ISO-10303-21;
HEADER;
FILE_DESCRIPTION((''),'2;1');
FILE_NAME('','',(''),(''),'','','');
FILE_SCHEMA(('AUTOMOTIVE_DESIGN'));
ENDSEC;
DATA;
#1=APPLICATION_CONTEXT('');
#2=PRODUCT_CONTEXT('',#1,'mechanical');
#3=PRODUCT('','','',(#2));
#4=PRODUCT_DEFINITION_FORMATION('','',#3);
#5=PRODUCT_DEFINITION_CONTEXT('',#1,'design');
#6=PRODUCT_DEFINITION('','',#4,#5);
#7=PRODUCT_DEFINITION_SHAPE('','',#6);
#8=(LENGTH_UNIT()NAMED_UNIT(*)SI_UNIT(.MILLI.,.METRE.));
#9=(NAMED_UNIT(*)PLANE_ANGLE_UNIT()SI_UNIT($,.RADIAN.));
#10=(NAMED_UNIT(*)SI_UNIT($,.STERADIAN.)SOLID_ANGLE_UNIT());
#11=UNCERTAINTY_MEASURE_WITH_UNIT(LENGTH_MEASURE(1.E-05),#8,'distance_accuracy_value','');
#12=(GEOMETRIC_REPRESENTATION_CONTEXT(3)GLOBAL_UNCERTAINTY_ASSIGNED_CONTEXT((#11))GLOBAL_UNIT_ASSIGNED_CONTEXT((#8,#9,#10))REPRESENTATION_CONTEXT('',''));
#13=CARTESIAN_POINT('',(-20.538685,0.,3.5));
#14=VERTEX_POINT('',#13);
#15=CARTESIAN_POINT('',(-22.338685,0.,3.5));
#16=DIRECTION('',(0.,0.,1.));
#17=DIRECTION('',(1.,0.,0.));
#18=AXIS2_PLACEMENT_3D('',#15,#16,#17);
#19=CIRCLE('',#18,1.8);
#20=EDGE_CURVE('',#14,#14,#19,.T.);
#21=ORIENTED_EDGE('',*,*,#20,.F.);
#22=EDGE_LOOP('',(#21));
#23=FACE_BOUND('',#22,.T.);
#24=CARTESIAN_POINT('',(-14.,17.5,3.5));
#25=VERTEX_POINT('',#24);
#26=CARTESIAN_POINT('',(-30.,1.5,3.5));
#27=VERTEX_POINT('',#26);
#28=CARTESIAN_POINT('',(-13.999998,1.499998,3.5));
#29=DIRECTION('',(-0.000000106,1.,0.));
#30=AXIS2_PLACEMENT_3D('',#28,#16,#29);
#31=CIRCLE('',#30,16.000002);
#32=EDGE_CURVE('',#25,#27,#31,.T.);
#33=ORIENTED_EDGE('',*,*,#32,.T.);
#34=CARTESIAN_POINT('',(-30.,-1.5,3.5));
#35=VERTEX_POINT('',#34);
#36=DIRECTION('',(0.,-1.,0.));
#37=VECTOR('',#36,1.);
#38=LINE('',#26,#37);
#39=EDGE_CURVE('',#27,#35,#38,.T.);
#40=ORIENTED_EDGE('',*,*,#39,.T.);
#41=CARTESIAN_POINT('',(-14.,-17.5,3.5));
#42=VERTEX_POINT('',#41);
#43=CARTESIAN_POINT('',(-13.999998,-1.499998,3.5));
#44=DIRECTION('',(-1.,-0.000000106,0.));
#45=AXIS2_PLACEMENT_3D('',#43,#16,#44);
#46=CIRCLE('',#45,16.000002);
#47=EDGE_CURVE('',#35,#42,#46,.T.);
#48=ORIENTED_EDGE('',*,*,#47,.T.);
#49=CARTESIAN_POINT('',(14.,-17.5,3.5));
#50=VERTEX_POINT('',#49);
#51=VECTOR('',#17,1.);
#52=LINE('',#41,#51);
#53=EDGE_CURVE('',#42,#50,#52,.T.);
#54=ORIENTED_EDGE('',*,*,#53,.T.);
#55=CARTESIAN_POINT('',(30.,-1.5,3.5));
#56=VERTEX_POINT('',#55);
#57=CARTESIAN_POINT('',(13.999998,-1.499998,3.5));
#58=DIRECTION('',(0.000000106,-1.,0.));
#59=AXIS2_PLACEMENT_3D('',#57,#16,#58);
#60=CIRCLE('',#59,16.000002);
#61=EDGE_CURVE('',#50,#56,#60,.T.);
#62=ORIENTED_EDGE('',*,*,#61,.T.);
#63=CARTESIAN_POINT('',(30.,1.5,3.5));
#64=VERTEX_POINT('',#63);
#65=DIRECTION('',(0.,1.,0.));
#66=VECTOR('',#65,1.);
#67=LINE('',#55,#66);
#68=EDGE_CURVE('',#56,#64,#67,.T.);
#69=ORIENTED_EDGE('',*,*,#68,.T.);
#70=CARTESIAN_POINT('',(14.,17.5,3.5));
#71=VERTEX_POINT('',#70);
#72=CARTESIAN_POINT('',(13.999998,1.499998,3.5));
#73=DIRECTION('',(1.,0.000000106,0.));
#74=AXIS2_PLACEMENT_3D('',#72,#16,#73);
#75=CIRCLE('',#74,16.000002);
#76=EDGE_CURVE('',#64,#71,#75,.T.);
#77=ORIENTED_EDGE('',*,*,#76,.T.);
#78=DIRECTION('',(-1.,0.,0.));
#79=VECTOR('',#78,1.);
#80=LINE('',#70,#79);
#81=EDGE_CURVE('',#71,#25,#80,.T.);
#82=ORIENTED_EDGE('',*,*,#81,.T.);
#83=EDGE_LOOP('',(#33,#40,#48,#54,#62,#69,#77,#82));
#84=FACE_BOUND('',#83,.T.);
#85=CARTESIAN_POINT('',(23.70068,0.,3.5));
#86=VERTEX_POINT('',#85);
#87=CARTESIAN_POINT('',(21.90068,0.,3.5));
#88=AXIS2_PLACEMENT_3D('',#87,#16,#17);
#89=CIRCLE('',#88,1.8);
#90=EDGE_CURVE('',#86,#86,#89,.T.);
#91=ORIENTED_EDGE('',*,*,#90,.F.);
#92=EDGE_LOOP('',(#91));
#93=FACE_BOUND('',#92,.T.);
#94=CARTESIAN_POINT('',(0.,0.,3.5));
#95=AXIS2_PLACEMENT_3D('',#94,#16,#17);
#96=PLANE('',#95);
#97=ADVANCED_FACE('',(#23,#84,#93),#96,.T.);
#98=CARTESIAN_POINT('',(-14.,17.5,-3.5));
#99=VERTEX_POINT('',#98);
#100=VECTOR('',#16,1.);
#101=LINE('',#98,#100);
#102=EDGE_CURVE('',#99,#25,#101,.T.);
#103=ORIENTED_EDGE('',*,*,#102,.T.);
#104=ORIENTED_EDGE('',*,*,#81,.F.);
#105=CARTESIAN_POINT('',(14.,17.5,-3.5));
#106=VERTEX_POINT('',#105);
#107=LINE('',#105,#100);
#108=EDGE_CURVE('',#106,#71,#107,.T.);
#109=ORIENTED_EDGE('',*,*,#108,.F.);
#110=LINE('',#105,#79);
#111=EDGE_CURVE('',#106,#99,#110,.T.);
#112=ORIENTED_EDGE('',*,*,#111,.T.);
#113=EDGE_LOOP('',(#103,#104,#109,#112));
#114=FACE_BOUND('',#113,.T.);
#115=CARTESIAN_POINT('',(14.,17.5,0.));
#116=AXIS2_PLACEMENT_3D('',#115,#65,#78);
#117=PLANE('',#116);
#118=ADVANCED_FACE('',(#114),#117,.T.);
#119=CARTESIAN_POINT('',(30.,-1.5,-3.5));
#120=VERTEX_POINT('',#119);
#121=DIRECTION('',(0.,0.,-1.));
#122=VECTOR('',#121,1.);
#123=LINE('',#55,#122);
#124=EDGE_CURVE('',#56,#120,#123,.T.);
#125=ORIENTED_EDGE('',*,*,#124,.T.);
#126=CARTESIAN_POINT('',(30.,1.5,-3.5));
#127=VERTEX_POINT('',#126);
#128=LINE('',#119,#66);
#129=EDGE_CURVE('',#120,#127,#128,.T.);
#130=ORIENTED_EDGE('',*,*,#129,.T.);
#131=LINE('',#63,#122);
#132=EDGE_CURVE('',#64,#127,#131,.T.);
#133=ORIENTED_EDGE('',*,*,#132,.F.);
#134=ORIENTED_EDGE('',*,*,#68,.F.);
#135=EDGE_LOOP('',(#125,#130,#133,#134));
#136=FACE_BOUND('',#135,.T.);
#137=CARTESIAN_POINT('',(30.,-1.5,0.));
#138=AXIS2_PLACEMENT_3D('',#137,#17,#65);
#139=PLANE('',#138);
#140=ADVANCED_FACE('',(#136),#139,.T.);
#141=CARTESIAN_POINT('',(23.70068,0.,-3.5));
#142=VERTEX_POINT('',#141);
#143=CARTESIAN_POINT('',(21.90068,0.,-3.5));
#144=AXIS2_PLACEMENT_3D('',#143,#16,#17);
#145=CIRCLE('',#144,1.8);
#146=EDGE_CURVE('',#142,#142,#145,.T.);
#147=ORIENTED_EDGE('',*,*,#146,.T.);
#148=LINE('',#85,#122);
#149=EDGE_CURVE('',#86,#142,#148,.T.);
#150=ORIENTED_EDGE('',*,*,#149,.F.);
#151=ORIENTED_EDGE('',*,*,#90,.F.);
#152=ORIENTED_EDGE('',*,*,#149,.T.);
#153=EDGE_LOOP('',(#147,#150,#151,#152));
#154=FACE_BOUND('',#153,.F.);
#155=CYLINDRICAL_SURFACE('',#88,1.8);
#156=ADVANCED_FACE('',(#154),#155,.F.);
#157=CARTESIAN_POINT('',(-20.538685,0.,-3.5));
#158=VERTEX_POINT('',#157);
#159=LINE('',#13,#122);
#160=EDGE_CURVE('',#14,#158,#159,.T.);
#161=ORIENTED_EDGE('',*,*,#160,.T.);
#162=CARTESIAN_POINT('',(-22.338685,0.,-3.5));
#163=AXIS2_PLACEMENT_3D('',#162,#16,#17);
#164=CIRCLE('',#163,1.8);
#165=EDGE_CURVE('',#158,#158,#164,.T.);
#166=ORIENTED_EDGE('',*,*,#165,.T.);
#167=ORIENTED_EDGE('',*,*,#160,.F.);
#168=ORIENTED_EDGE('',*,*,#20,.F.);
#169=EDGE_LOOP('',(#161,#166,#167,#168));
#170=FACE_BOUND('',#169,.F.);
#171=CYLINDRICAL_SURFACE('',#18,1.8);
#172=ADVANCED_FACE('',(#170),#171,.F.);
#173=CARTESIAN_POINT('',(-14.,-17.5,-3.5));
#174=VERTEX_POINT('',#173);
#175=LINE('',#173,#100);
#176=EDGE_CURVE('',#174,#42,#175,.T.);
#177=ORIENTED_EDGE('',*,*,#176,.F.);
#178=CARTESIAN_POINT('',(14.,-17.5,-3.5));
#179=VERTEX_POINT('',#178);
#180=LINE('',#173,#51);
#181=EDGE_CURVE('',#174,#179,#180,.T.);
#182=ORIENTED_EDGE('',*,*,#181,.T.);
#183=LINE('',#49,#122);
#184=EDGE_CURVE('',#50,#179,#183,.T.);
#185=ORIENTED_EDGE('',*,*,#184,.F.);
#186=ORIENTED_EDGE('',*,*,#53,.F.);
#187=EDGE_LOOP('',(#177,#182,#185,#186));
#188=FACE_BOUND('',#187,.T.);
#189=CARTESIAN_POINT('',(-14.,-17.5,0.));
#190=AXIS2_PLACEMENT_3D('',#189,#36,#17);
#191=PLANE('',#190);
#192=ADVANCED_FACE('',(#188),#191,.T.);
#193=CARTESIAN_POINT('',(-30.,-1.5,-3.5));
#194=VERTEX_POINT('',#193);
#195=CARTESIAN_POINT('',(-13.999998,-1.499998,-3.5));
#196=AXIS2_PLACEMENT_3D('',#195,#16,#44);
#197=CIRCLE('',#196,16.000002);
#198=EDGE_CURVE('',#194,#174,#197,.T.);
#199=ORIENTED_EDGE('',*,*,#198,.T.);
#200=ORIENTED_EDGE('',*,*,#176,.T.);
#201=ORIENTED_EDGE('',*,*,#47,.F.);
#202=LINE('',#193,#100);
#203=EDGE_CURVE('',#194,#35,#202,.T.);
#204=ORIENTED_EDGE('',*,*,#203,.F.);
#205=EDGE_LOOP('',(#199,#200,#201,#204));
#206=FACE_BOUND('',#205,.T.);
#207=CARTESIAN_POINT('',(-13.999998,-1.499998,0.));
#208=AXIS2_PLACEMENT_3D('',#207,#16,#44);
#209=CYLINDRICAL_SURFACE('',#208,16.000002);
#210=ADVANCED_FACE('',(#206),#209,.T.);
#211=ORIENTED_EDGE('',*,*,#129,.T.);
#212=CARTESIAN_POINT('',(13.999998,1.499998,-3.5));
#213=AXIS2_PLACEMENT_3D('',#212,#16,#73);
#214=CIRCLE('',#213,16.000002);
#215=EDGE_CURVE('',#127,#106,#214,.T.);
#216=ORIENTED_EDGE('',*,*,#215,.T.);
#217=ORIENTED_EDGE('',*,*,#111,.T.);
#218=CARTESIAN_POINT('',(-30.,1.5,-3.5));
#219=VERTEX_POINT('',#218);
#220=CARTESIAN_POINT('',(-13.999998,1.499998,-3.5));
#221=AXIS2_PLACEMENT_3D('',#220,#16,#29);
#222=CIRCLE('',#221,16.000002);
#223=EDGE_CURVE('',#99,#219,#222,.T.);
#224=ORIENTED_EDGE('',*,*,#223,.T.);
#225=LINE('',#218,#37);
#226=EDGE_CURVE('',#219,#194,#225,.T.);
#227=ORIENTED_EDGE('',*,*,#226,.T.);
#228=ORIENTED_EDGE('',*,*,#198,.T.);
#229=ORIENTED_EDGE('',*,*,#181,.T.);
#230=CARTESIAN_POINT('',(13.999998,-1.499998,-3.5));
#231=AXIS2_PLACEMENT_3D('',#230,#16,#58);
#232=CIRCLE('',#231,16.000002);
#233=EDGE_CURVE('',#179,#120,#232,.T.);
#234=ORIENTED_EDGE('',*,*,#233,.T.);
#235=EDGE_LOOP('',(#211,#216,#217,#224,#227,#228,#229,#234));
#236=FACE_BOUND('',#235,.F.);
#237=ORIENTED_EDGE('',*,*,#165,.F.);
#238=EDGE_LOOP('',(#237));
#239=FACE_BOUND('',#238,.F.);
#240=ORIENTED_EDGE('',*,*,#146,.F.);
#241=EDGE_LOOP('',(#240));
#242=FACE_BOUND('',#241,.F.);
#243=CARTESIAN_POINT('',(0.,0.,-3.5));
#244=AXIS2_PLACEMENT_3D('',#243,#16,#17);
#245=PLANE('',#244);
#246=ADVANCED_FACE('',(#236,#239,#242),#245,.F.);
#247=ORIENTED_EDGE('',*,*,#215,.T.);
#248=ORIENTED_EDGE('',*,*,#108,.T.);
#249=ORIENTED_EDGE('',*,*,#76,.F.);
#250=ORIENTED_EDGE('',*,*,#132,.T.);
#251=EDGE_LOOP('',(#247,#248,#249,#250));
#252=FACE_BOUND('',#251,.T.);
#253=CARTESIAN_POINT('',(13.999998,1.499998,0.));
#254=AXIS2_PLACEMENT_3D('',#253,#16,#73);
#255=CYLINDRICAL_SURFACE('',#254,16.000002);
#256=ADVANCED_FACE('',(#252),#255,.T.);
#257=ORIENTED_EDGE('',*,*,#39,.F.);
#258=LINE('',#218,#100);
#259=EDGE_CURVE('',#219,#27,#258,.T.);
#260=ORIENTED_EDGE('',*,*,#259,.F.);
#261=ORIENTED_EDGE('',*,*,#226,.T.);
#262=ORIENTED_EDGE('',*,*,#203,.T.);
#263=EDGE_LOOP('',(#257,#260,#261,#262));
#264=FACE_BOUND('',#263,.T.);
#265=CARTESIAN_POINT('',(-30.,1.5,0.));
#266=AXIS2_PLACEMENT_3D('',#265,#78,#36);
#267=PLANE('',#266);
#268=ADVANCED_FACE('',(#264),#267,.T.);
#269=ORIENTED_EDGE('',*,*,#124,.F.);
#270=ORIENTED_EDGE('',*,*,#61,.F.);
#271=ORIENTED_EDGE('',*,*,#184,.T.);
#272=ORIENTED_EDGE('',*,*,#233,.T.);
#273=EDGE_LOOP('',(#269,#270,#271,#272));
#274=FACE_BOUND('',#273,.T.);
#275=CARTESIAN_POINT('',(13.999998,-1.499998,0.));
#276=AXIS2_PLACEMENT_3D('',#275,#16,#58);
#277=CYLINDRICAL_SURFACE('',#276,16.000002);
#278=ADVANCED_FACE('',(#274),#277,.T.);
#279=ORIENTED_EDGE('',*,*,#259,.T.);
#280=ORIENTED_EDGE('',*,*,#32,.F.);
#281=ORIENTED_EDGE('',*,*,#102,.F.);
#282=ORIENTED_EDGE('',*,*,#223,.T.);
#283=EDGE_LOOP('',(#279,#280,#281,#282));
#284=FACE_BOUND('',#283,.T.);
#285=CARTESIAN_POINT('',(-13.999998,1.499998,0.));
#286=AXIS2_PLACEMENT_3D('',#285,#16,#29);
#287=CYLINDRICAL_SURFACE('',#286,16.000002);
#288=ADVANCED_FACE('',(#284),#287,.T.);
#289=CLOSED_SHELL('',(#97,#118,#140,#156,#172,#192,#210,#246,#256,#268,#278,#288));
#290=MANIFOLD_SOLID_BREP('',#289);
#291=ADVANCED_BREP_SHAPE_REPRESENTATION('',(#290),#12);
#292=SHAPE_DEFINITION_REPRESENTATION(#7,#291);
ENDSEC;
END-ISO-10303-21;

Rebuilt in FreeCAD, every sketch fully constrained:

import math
import FreeCAD as App
import Part
import Sketcher
from FreeCAD import Vector

doc = App.newDocument("Part")
body = doc.addObject("PartDesign::Body", "Body")

sketch1 = doc.addObject("Sketcher::SketchObject", "Sketch")
body.addObject(sketch1)
sketch1.AttachmentSupport = (doc.XY_Plane, [""])
sketch1.MapMode = "FlatFace"
sketch1.addGeometry([
    Part.ArcOfCircle(Part.Circle(Vector(13.999998, 1.499998, 0), Vector(0, 0, 1), 16.000002), math.radians(0.000006), math.radians(89.999994)),
    Part.LineSegment(Vector(14, 17.5, 0), Vector(-14, 17.5, 0)),
    Part.ArcOfCircle(Part.Circle(Vector(-13.999998, 1.499998, 0), Vector(0, 0, 1), 16.000002), math.radians(90.000006), math.radians(179.999994)),
    Part.LineSegment(Vector(-30, 1.5, 0), Vector(-30, -1.5, 0)),
    Part.ArcOfCircle(Part.Circle(Vector(-13.999998, -1.499998, 0), Vector(0, 0, 1), 16.000002), math.radians(-179.999994), math.radians(-90.000006)),
    Part.LineSegment(Vector(-14, -17.5, 0), Vector(14, -17.5, 0)),
    Part.ArcOfCircle(Part.Circle(Vector(13.999998, -1.499998, 0), Vector(0, 0, 1), 16.000002), math.radians(-89.999994), math.radians(-0.000006)),
    Part.LineSegment(Vector(30, -1.5, 0), Vector(30, 1.5, 0)),
], False)
sketch1.addConstraint([
    Sketcher.Constraint("Tangent", 0, 2, 1, 1),
    Sketcher.Constraint("Tangent", 1, 2, 2, 1),
    Sketcher.Constraint("Tangent", 2, 2, 3, 1),
    Sketcher.Constraint("Tangent", 3, 2, 4, 1),
    Sketcher.Constraint("Tangent", 4, 2, 5, 1),
    Sketcher.Constraint("Tangent", 5, 2, 6, 1),
    Sketcher.Constraint("Tangent", 6, 2, 7, 1),
    Sketcher.Constraint("Tangent", 7, 2, 0, 1),
    Sketcher.Constraint("Horizontal", 1),
    Sketcher.Constraint("Vertical", 3),
    Sketcher.Constraint("Horizontal", 5),
    Sketcher.Constraint("Vertical", 7),
    Sketcher.Constraint("Equal", 0, 2),
    Sketcher.Constraint("Equal", 2, 4),
    Sketcher.Constraint("Equal", 4, 6),
    Sketcher.Constraint("Symmetric", 0, 3, 4, 3, -1, 1),
    Sketcher.Constraint("Radius", 0, 16.000002),
    Sketcher.Constraint("DistanceX", 1, 2, 1, 1, 28.0),
    Sketcher.Constraint("DistanceY", 3, 2, 3, 1, 3.0),
])
pad1 = doc.addObject("PartDesign::Pad", "Pad")
body.addObject(pad1)
pad1.Profile = sketch1
pad1.Length = 7
pad1.Midplane = True

sketch2 = doc.addObject("Sketcher::SketchObject", "Sketch001")
body.addObject(sketch2)
sketch2.AttachmentSupport = (doc.XY_Plane, [""])
sketch2.MapMode = "FlatFace"
sketch2.AttachmentOffset = App.Placement(Vector(0, 0, 3.5), App.Rotation())
sketch2.addGeometry(Part.Circle(Vector(-22.338685, 0, 0), Vector(0, 0, 1), 1.8), False)
sketch2.addConstraint([
    Sketcher.Constraint("PointOnObject", 0, 3, -1),
    Sketcher.Constraint("Diameter", 0, 3.6),
    Sketcher.Constraint("DistanceX", 0, 3, -1, 1, 22.338685),
])
pocket1 = doc.addObject("PartDesign::Pocket", "Pocket")
body.addObject(pocket1)
pocket1.Profile = sketch2
pocket1.Length = 8

sketch3 = doc.addObject("Sketcher::SketchObject", "Sketch002")
body.addObject(sketch3)
sketch3.AttachmentSupport = (doc.XY_Plane, [""])
sketch3.MapMode = "FlatFace"
sketch3.AttachmentOffset = App.Placement(Vector(0, 0, 3.5), App.Rotation())
sketch3.addGeometry(Part.Circle(Vector(21.90068, 0, 0), Vector(0, 0, 1), 1.8), False)
sketch3.addConstraint([
    Sketcher.Constraint("PointOnObject", 0, 3, -1),
    Sketcher.Constraint("Diameter", 0, 3.6),
    Sketcher.Constraint("DistanceX", -1, 1, 0, 3, 21.90068),
])
pocket2 = doc.addObject("PartDesign::Pocket", "Pocket001")
body.addObject(pocket2)
pocket2.Profile = sketch3
pocket2.Length = 8

doc.recompute()
